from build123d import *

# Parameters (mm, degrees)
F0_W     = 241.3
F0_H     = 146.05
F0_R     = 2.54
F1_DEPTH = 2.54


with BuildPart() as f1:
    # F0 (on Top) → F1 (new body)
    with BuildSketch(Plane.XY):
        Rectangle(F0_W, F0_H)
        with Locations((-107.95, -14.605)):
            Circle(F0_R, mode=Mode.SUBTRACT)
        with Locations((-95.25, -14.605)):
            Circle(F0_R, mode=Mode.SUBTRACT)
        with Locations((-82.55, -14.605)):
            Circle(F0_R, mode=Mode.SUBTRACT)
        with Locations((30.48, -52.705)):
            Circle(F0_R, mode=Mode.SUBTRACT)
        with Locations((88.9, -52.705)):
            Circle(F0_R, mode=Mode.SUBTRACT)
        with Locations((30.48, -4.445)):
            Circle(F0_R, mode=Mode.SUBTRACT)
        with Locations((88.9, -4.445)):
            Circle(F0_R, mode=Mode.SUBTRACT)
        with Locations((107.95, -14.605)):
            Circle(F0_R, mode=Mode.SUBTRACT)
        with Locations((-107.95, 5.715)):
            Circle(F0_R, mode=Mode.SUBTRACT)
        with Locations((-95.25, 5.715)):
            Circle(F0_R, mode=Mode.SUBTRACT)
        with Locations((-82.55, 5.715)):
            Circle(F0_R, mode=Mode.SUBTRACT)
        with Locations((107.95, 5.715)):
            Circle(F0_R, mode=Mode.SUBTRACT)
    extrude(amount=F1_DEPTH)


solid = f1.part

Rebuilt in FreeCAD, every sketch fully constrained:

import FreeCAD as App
import Part
import Sketcher
from FreeCAD import Vector
Q = App.Units.Quantity


def add_polygon(sketch, points):
    """Adds a closed chain of lines whose ends are joined by coincident constraints."""
    first, n = sketch.GeometryCount, len(points)
    for a, b in zip(points, points[1:] + points[:1]):
        sketch.addGeometry(Part.LineSegment(App.Vector(*a, 0), App.Vector(*b, 0)), False)
    for i in range(n):
        sketch.addConstraint(Sketcher.Constraint("Coincident", first + i, 2, first + (i + 1) % n, 1))

doc = App.newDocument("Part")
params = doc.addObject("Spreadsheet::Sheet", "Params")
for row, (alias, value) in enumerate([
    ("sketch1_diameter", "0.2 in"),
    ("sketch1_width", "9.5 in"),
    ("sketch1_height", "5.75 in"),
    ("pad1_length", "0.1 in"),
], start=1):
    params.set(f"A{row}", alias)
    params.set(f"B{row}", "=" + value)
    params.setAlias(f"B{row}", alias)

body = doc.addObject("PartDesign::Body", "Body")

# Sketch on XY plane
sketch1 = doc.addObject("Sketcher::SketchObject", "Sketch")
body.addObject(sketch1)
sketch1.AttachmentSupport = (doc.XY_Plane, [""])
sketch1.MapMode = "FlatFace"
add_polygon(sketch1, [(-120.65, 73.025), (-120.65, -73.025), (120.65, -73.025), (120.65, 73.025)])  # lines 0-3
sketch1.addGeometry(Part.Circle(Vector(30.48, -52.705, 0), Vector(0, 0, 1), 2.54), False)  # 4
sketch1.addGeometry(Part.Circle(Vector(88.9, -52.705, 0), Vector(0, 0, 1), 2.54), False)  # 5
sketch1.addGeometry(Part.Circle(Vector(-107.95, -14.605, 0), Vector(0, 0, 1), 2.54), False)  # 6
sketch1.addGeometry(Part.Circle(Vector(-95.25, -14.605, 0), Vector(0, 0, 1), 2.54), False)  # 7
sketch1.addGeometry(Part.Circle(Vector(-82.55, -14.605, 0), Vector(0, 0, 1), 2.54), False)  # 8
sketch1.addGeometry(Part.Circle(Vector(-107.95, 5.715, 0), Vector(0, 0, 1), 2.54), False)  # 9
sketch1.addGeometry(Part.Circle(Vector(-95.25, 5.715, 0), Vector(0, 0, 1), 2.54), False)  # 10
sketch1.addGeometry(Part.Circle(Vector(-82.55, 5.715, 0), Vector(0, 0, 1), 2.54), False)  # 11
sketch1.addGeometry(Part.Circle(Vector(107.95, -14.605, 0), Vector(0, 0, 1), 2.54), False)  # 12
sketch1.addGeometry(Part.Circle(Vector(30.48, -4.445, 0), Vector(0, 0, 1), 2.54), False)  # 13
sketch1.addGeometry(Part.Circle(Vector(88.9, -4.445, 0), Vector(0, 0, 1), 2.54), False)  # 14
sketch1.addGeometry(Part.Circle(Vector(107.95, 5.715, 0), Vector(0, 0, 1), 2.54), False)  # 15
sketch1.addConstraint([
    Sketcher.Constraint("Vertical", 0),
    Sketcher.Constraint("Horizontal", 1),
    Sketcher.Constraint("Vertical", 2),
    Sketcher.Constraint("Horizontal", 3),
    Sketcher.Constraint("Equal", 4, 5),
    Sketcher.Constraint("Equal", 5, 6),
    Sketcher.Constraint("Equal", 6, 7),
    Sketcher.Constraint("Equal", 7, 8),
    Sketcher.Constraint("Equal", 8, 9),
    Sketcher.Constraint("Equal", 9, 10),
    Sketcher.Constraint("Equal", 10, 11),
    Sketcher.Constraint("Equal", 11, 12),
    Sketcher.Constraint("Equal", 12, 13),
    Sketcher.Constraint("Equal", 13, 14),
    Sketcher.Constraint("Equal", 14, 15),
    Sketcher.Constraint("Symmetric", 0, 2, 2, 2, -1, 1),
    Sketcher.Constraint("Symmetric", 6, 3, 12, 3, -2),
    Sketcher.Constraint("Symmetric", 9, 3, 15, 3, -2),
    Sketcher.Constraint("Horizontal", 4, 3, 5, 3),
    Sketcher.Constraint("Horizontal", 6, 3, 7, 3),
    Sketcher.Constraint("Horizontal", 7, 3, 8, 3),
    Sketcher.Constraint("Horizontal", 9, 3, 10, 3),
    Sketcher.Constraint("Horizontal", 10, 3, 11, 3),
    Sketcher.Constraint("Horizontal", 13, 3, 14, 3),
    Sketcher.Constraint("Vertical", 6, 3, 9, 3),
    Sketcher.Constraint("Vertical", 7, 3, 10, 3),
    Sketcher.Constraint("Vertical", 8, 3, 11, 3),
    Sketcher.Constraint("Vertical", 4, 3, 13, 3),
    Sketcher.Constraint("Vertical", 5, 3, 14, 3),
    Sketcher.Constraint("Diameter", 4, Q("0.2 in")),
    Sketcher.Constraint("DistanceX", 1, 1, 1, 2, Q("9.5 in")),
    Sketcher.Constraint("DistanceX", 6, 3, 8, 3, Q("1 in")),
    Sketcher.Constraint("DistanceX", 7, 3, 12, 3, Q("8 in")),
    Sketcher.Constraint("DistanceX", 0, 2, 7, 3, Q("1 in")),
    Sketcher.Constraint("DistanceY", 0, 2, 0, 1, Q("5.75 in")),
    Sketcher.Constraint("DistanceX", -1, 1, 4, 3, Q("1.2 in")),
    Sketcher.Constraint("DistanceX", -1, 1, 5, 3, Q("3.5 in")),
    Sketcher.Constraint("DistanceY", 4, 3, 6, 3, Q("1.5 in")),
    Sketcher.Constraint("DistanceY", 6, 3, 9, 3, Q("0.8 in")),
    Sketcher.Constraint("DistanceY", 4, 3, 13, 3, Q("1.9 in")),
    Sketcher.Constraint("DistanceY", 0, 2, 6, 3, Q("2.3 in")),
])
sketch1.setExpression("Constraints[33]", "Params.sketch1_diameter")
sketch1.setExpression("Constraints[34]", "Params.sketch1_width")
sketch1.setExpression("Constraints[38]", "Params.sketch1_height")
pad1 = doc.addObject("PartDesign::Pad", "Pad")
body.addObject(pad1)
pad1.Profile = sketch1
pad1.setExpression("Length", "Params.pad1_length")

doc.recompute()
